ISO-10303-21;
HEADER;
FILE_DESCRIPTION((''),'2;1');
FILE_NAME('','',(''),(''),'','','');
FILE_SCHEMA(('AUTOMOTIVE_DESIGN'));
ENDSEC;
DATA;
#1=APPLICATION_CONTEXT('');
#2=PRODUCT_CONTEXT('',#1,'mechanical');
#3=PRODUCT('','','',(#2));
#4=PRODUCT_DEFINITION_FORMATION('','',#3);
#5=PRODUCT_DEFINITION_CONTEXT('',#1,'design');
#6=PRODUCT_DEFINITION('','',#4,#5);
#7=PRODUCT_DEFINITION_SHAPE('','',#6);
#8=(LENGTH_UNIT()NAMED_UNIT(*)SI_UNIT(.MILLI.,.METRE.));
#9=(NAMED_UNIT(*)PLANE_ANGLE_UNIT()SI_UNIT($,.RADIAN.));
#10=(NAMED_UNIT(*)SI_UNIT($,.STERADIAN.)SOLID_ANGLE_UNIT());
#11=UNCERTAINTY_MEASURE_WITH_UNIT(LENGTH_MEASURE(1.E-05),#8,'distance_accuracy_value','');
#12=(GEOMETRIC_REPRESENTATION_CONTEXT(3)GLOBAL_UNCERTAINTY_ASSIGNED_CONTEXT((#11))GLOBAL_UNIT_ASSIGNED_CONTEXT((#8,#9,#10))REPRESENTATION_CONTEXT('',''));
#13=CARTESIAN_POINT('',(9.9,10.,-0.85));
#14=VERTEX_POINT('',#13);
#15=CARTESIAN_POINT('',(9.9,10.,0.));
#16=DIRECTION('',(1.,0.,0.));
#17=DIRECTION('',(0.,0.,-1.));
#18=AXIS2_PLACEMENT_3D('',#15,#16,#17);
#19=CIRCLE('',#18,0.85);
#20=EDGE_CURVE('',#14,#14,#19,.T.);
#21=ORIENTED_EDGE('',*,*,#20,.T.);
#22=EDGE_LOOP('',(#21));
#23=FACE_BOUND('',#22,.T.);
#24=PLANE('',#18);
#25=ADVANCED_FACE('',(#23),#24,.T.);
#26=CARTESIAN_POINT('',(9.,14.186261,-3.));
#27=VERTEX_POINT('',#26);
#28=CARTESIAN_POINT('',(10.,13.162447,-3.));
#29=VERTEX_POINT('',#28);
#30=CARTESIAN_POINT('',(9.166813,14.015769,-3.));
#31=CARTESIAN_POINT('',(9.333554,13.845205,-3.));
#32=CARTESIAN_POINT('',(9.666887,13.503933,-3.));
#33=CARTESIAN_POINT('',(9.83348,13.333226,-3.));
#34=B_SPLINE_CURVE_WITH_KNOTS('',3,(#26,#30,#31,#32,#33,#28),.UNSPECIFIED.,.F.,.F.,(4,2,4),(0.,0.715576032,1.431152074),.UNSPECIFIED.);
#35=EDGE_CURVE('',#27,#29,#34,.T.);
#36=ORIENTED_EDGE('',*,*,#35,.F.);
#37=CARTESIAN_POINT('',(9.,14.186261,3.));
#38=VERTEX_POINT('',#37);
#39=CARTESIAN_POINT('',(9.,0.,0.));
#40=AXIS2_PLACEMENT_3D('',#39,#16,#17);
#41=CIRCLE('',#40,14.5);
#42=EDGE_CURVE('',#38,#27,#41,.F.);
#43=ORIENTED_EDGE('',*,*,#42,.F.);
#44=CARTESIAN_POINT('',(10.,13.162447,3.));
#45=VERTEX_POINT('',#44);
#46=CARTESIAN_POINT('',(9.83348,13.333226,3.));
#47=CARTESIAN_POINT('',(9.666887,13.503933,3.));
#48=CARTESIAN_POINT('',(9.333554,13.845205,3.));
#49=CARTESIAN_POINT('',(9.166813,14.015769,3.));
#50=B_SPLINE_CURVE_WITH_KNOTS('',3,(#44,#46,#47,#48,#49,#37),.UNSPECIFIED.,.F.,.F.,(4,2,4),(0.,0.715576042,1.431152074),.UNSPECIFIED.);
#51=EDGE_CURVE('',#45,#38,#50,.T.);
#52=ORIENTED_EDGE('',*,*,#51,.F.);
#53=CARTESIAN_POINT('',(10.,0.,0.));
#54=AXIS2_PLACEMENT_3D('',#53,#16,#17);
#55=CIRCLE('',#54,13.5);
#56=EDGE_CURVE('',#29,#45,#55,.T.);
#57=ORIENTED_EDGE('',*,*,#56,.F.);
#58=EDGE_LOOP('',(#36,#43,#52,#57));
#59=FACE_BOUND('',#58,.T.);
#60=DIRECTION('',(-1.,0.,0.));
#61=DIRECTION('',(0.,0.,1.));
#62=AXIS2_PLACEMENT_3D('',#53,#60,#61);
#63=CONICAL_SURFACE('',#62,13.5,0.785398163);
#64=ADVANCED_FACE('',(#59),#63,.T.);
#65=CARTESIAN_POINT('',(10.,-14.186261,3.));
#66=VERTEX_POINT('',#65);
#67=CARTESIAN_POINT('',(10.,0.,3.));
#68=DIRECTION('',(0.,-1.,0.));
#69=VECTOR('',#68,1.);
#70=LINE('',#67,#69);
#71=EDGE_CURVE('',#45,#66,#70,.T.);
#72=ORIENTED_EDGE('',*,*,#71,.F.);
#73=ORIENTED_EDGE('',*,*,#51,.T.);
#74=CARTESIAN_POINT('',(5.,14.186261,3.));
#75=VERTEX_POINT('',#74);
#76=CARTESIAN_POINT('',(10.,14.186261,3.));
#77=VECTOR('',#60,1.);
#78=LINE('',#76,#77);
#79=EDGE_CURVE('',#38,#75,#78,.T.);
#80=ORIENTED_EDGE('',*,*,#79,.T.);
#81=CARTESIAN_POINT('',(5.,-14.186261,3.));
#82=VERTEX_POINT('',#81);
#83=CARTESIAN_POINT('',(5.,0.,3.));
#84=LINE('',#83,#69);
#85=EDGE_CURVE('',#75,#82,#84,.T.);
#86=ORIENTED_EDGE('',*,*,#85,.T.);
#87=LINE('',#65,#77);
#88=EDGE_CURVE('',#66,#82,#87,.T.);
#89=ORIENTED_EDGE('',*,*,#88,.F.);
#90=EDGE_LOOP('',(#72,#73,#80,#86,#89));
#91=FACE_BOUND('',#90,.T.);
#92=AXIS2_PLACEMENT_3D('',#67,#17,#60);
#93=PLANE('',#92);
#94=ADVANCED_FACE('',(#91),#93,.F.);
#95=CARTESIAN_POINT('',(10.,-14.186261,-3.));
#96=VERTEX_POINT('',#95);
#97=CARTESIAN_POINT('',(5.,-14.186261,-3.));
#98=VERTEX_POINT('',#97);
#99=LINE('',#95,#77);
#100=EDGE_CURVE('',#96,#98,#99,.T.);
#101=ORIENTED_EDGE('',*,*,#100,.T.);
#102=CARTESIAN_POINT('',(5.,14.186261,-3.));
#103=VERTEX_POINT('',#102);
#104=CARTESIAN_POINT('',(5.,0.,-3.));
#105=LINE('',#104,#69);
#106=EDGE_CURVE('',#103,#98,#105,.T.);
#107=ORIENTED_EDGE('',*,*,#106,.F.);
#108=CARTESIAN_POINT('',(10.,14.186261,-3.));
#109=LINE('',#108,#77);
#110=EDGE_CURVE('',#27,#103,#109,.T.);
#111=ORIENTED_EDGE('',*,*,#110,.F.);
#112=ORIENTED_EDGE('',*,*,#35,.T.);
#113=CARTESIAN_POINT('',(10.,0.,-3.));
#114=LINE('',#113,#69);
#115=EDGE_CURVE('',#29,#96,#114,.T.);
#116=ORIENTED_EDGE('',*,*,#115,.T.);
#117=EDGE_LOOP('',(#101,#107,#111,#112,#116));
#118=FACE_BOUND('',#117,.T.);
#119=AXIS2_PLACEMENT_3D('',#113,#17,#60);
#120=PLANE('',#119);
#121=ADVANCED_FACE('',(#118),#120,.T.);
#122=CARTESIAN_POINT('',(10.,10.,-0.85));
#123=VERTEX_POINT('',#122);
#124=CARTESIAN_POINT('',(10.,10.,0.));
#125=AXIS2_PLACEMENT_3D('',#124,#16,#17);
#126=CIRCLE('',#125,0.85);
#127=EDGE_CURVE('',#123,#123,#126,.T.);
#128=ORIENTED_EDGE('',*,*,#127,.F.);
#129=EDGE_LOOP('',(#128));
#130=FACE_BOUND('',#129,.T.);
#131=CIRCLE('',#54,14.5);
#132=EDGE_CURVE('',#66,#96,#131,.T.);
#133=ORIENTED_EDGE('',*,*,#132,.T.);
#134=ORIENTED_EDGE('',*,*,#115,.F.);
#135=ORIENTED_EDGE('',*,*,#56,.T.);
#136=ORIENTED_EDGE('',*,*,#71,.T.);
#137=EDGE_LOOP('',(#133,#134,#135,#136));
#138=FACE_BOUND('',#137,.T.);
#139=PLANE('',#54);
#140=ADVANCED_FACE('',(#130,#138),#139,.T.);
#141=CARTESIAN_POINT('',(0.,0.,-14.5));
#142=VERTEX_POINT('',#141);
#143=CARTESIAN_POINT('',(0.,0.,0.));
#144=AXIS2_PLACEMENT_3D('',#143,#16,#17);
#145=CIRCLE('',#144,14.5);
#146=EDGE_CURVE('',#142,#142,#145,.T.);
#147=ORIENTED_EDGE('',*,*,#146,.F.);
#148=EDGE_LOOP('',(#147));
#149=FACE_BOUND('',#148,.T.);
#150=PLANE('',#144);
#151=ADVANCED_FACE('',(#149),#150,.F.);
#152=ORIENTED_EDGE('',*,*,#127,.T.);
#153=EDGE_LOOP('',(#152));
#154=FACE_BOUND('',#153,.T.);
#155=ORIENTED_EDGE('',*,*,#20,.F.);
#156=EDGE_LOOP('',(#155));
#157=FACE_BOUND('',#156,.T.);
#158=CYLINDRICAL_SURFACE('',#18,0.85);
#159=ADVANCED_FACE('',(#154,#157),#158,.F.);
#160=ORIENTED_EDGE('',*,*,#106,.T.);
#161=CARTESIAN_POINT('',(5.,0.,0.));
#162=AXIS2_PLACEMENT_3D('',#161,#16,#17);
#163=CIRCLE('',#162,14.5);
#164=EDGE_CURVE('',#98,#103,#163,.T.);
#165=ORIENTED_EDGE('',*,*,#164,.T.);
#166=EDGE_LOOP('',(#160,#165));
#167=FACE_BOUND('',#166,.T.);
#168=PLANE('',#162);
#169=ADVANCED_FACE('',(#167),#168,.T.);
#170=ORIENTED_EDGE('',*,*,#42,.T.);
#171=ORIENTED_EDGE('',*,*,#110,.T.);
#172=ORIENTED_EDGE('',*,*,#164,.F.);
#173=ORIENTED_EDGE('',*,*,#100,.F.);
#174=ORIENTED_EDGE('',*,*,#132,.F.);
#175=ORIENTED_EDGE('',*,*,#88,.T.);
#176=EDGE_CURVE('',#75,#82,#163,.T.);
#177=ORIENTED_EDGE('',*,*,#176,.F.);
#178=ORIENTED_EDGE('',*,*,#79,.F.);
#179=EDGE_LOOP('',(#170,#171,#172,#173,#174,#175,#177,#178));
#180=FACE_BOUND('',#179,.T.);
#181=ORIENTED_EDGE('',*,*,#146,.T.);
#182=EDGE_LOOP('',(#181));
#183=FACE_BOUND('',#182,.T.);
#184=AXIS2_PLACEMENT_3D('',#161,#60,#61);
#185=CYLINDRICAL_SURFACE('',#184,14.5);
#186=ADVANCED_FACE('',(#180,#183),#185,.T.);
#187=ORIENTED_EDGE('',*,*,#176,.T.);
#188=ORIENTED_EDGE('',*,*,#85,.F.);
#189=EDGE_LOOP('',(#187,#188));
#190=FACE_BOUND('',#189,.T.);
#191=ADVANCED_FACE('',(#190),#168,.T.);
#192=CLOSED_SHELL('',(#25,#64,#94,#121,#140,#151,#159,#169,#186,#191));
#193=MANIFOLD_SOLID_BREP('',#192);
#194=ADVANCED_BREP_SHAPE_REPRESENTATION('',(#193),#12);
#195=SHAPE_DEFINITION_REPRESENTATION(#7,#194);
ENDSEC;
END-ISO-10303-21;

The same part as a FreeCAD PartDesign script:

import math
import FreeCAD as App
import Part
import Sketcher


def edges_at(feature, points):
    """Names of the edges that pass closest to the given points."""
    edges = feature.Shape.Edges
    near = lambda p: min(range(len(edges)), key=lambda i: edges[i].distToShape(Part.Vertex(*p))[0])
    return sorted({f"Edge{near(p) + 1}" for p in points})

doc = App.newDocument("Part")
params = doc.addObject("Spreadsheet::Sheet", "Params")
for row, (alias, value) in enumerate([
    ("sketch1_diameter", "29 mm"),
    ("pad1_length", "5 mm"),
    ("sketch2_radius", "14.5 mm"),
    ("pad2_length", "5 mm"),
    ("chamfer_size", "1 mm"),
    ("sketch3_diameter", "1.7 mm"),
    ("pocket1_length", "0.1 mm"),
], start=1):
    params.set(f"A{row}", alias)
    params.set(f"B{row}", "=" + value)
    params.setAlias(f"B{row}", alias)

body = doc.addObject("PartDesign::Body", "Body")

# Sketch on YZ plane
sketch1 = body.newObject("Sketcher::SketchObject", "Sketch")
sketch1.AttachmentSupport = (doc.getObject("YZ_Plane"), [""])
sketch1.MapMode = "FlatFace"
sketch1.addGeometry(Part.Circle(App.Vector(0, 0, 0), App.Vector(0, 0, 1), 14), False)
sketch1.addConstraint([
    Sketcher.Constraint("Coincident", 0, 3, -1, 1),
    Sketcher.Constraint("Diameter", 0, 29.0),
])
sketch1.setExpression("Constraints[1]", "Params.sketch1_diameter")
pad1 = body.newObject("PartDesign::Pad", "Pad")
pad1.Profile = sketch1
pad1.setExpression("Length", "Params.pad1_length")

# Sketch on YZ plane
sketch2 = body.newObject("Sketcher::SketchObject", "Sketch001")
sketch2.AttachmentSupport = (doc.getObject("YZ_Plane"), [""])
sketch2.MapMode = "FlatFace"
sketch2.AttachmentOffset = App.Placement(App.Vector(0, 0, 5), App.Rotation())
sketch2.addGeometry([
    Part.ArcOfCircle(Part.Circle(App.Vector(0, 0, 0), App.Vector(0, 0, 1), 14.5), math.radians(-11.94), math.radians(0)),  # 0
    Part.ArcOfCircle(Part.Circle(App.Vector(0, 0, 0), App.Vector(0, 0, 1), 14.5), math.radians(0), math.radians(11.94)),  # 1
    Part.LineSegment(App.Vector(14.2, 3, 0), App.Vector(-14.2, 3, 0)),  # 2
    Part.ArcOfCircle(Part.Circle(App.Vector(0, 0, 0), App.Vector(0, 0, 1), 14.5), math.radians(168.06), math.radians(180)),  # 3
    Part.ArcOfCircle(Part.Circle(App.Vector(0, 0, 0), App.Vector(0, 0, 1), 14.5), math.radians(-180), math.radians(-168.06)),  # 4
    Part.LineSegment(App.Vector(-14.2, -3, 0), App.Vector(14.2, -3, 0)),  # 5
], False)
sketch2.addConstraint([
    Sketcher.Constraint("Tangent", 0, 2, 1, 1),
    Sketcher.Constraint("Coincident", 1, 2, 2, 1),
    Sketcher.Constraint("Coincident", 2, 2, 3, 1),
    Sketcher.Constraint("Tangent", 3, 2, 4, 1),
    Sketcher.Constraint("Coincident", 4, 2, 5, 1),
    Sketcher.Constraint("Coincident", 5, 2, 0, 1),
    Sketcher.Constraint("Horizontal", 2),
    Sketcher.Constraint("Horizontal", 5),
    Sketcher.Constraint("Coincident", 0, 3, -1, 1),
    Sketcher.Constraint("Coincident", 3, 3, -1, 1),
    Sketcher.Constraint("Equal", 0, 1),
    Sketcher.Constraint("Equal", 1, 3),
    Sketcher.Constraint("Equal", 3, 4),
    Sketcher.Constraint("PointOnObject", 0, 2, -1),
    Sketcher.Constraint("PointOnObject", 3, 2, -1),
    Sketcher.Constraint("Vertical", 2, 2, 4, 2),
    Sketcher.Constraint("Radius", 0, 14.5),
    Sketcher.Constraint("DistanceY", -1, 1, 1, 2, 3.0),
])
sketch2.setExpression("Constraints[16]", "Params.sketch2_radius")
pad2 = body.newObject("PartDesign::Pad", "Pad001")
pad2.Profile = sketch2
pad2.setExpression("Length", "Params.pad2_length")
doc.recompute()

chamfer = body.newObject("PartDesign::Chamfer", "Chamfer")
chamfer.Base = (pad2, edges_at(pad2, [(10, 14.421, -1.508)]))
chamfer.setExpression("Size", "Params.chamfer_size")

# Sketch on YZ plane
sketch3 = body.newObject("Sketcher::SketchObject", "Sketch002")
sketch3.AttachmentSupport = (doc.getObject("YZ_Plane"), [""])
sketch3.MapMode = "FlatFace"
sketch3.AttachmentOffset = App.Placement(App.Vector(0, 0, 10), App.Rotation())
sketch3.addGeometry(Part.Circle(App.Vector(10, 0, 0), App.Vector(0, 0, 1), 0.8), False)
sketch3.addConstraint([
    Sketcher.Constraint("PointOnObject", 0, 3, -1),
    Sketcher.Constraint("Diameter", 0, 1.7),
    Sketcher.Constraint("DistanceX", -1, 1, 0, 3, 10.0),
])
sketch3.setExpression("Constraints[1]", "Params.sketch3_diameter")
pocket1 = body.newObject("PartDesign::Pocket", "Pocket")
pocket1.Profile = sketch3
pocket1.setExpression("Length", "Params.pocket1_length")

doc.recompute()
